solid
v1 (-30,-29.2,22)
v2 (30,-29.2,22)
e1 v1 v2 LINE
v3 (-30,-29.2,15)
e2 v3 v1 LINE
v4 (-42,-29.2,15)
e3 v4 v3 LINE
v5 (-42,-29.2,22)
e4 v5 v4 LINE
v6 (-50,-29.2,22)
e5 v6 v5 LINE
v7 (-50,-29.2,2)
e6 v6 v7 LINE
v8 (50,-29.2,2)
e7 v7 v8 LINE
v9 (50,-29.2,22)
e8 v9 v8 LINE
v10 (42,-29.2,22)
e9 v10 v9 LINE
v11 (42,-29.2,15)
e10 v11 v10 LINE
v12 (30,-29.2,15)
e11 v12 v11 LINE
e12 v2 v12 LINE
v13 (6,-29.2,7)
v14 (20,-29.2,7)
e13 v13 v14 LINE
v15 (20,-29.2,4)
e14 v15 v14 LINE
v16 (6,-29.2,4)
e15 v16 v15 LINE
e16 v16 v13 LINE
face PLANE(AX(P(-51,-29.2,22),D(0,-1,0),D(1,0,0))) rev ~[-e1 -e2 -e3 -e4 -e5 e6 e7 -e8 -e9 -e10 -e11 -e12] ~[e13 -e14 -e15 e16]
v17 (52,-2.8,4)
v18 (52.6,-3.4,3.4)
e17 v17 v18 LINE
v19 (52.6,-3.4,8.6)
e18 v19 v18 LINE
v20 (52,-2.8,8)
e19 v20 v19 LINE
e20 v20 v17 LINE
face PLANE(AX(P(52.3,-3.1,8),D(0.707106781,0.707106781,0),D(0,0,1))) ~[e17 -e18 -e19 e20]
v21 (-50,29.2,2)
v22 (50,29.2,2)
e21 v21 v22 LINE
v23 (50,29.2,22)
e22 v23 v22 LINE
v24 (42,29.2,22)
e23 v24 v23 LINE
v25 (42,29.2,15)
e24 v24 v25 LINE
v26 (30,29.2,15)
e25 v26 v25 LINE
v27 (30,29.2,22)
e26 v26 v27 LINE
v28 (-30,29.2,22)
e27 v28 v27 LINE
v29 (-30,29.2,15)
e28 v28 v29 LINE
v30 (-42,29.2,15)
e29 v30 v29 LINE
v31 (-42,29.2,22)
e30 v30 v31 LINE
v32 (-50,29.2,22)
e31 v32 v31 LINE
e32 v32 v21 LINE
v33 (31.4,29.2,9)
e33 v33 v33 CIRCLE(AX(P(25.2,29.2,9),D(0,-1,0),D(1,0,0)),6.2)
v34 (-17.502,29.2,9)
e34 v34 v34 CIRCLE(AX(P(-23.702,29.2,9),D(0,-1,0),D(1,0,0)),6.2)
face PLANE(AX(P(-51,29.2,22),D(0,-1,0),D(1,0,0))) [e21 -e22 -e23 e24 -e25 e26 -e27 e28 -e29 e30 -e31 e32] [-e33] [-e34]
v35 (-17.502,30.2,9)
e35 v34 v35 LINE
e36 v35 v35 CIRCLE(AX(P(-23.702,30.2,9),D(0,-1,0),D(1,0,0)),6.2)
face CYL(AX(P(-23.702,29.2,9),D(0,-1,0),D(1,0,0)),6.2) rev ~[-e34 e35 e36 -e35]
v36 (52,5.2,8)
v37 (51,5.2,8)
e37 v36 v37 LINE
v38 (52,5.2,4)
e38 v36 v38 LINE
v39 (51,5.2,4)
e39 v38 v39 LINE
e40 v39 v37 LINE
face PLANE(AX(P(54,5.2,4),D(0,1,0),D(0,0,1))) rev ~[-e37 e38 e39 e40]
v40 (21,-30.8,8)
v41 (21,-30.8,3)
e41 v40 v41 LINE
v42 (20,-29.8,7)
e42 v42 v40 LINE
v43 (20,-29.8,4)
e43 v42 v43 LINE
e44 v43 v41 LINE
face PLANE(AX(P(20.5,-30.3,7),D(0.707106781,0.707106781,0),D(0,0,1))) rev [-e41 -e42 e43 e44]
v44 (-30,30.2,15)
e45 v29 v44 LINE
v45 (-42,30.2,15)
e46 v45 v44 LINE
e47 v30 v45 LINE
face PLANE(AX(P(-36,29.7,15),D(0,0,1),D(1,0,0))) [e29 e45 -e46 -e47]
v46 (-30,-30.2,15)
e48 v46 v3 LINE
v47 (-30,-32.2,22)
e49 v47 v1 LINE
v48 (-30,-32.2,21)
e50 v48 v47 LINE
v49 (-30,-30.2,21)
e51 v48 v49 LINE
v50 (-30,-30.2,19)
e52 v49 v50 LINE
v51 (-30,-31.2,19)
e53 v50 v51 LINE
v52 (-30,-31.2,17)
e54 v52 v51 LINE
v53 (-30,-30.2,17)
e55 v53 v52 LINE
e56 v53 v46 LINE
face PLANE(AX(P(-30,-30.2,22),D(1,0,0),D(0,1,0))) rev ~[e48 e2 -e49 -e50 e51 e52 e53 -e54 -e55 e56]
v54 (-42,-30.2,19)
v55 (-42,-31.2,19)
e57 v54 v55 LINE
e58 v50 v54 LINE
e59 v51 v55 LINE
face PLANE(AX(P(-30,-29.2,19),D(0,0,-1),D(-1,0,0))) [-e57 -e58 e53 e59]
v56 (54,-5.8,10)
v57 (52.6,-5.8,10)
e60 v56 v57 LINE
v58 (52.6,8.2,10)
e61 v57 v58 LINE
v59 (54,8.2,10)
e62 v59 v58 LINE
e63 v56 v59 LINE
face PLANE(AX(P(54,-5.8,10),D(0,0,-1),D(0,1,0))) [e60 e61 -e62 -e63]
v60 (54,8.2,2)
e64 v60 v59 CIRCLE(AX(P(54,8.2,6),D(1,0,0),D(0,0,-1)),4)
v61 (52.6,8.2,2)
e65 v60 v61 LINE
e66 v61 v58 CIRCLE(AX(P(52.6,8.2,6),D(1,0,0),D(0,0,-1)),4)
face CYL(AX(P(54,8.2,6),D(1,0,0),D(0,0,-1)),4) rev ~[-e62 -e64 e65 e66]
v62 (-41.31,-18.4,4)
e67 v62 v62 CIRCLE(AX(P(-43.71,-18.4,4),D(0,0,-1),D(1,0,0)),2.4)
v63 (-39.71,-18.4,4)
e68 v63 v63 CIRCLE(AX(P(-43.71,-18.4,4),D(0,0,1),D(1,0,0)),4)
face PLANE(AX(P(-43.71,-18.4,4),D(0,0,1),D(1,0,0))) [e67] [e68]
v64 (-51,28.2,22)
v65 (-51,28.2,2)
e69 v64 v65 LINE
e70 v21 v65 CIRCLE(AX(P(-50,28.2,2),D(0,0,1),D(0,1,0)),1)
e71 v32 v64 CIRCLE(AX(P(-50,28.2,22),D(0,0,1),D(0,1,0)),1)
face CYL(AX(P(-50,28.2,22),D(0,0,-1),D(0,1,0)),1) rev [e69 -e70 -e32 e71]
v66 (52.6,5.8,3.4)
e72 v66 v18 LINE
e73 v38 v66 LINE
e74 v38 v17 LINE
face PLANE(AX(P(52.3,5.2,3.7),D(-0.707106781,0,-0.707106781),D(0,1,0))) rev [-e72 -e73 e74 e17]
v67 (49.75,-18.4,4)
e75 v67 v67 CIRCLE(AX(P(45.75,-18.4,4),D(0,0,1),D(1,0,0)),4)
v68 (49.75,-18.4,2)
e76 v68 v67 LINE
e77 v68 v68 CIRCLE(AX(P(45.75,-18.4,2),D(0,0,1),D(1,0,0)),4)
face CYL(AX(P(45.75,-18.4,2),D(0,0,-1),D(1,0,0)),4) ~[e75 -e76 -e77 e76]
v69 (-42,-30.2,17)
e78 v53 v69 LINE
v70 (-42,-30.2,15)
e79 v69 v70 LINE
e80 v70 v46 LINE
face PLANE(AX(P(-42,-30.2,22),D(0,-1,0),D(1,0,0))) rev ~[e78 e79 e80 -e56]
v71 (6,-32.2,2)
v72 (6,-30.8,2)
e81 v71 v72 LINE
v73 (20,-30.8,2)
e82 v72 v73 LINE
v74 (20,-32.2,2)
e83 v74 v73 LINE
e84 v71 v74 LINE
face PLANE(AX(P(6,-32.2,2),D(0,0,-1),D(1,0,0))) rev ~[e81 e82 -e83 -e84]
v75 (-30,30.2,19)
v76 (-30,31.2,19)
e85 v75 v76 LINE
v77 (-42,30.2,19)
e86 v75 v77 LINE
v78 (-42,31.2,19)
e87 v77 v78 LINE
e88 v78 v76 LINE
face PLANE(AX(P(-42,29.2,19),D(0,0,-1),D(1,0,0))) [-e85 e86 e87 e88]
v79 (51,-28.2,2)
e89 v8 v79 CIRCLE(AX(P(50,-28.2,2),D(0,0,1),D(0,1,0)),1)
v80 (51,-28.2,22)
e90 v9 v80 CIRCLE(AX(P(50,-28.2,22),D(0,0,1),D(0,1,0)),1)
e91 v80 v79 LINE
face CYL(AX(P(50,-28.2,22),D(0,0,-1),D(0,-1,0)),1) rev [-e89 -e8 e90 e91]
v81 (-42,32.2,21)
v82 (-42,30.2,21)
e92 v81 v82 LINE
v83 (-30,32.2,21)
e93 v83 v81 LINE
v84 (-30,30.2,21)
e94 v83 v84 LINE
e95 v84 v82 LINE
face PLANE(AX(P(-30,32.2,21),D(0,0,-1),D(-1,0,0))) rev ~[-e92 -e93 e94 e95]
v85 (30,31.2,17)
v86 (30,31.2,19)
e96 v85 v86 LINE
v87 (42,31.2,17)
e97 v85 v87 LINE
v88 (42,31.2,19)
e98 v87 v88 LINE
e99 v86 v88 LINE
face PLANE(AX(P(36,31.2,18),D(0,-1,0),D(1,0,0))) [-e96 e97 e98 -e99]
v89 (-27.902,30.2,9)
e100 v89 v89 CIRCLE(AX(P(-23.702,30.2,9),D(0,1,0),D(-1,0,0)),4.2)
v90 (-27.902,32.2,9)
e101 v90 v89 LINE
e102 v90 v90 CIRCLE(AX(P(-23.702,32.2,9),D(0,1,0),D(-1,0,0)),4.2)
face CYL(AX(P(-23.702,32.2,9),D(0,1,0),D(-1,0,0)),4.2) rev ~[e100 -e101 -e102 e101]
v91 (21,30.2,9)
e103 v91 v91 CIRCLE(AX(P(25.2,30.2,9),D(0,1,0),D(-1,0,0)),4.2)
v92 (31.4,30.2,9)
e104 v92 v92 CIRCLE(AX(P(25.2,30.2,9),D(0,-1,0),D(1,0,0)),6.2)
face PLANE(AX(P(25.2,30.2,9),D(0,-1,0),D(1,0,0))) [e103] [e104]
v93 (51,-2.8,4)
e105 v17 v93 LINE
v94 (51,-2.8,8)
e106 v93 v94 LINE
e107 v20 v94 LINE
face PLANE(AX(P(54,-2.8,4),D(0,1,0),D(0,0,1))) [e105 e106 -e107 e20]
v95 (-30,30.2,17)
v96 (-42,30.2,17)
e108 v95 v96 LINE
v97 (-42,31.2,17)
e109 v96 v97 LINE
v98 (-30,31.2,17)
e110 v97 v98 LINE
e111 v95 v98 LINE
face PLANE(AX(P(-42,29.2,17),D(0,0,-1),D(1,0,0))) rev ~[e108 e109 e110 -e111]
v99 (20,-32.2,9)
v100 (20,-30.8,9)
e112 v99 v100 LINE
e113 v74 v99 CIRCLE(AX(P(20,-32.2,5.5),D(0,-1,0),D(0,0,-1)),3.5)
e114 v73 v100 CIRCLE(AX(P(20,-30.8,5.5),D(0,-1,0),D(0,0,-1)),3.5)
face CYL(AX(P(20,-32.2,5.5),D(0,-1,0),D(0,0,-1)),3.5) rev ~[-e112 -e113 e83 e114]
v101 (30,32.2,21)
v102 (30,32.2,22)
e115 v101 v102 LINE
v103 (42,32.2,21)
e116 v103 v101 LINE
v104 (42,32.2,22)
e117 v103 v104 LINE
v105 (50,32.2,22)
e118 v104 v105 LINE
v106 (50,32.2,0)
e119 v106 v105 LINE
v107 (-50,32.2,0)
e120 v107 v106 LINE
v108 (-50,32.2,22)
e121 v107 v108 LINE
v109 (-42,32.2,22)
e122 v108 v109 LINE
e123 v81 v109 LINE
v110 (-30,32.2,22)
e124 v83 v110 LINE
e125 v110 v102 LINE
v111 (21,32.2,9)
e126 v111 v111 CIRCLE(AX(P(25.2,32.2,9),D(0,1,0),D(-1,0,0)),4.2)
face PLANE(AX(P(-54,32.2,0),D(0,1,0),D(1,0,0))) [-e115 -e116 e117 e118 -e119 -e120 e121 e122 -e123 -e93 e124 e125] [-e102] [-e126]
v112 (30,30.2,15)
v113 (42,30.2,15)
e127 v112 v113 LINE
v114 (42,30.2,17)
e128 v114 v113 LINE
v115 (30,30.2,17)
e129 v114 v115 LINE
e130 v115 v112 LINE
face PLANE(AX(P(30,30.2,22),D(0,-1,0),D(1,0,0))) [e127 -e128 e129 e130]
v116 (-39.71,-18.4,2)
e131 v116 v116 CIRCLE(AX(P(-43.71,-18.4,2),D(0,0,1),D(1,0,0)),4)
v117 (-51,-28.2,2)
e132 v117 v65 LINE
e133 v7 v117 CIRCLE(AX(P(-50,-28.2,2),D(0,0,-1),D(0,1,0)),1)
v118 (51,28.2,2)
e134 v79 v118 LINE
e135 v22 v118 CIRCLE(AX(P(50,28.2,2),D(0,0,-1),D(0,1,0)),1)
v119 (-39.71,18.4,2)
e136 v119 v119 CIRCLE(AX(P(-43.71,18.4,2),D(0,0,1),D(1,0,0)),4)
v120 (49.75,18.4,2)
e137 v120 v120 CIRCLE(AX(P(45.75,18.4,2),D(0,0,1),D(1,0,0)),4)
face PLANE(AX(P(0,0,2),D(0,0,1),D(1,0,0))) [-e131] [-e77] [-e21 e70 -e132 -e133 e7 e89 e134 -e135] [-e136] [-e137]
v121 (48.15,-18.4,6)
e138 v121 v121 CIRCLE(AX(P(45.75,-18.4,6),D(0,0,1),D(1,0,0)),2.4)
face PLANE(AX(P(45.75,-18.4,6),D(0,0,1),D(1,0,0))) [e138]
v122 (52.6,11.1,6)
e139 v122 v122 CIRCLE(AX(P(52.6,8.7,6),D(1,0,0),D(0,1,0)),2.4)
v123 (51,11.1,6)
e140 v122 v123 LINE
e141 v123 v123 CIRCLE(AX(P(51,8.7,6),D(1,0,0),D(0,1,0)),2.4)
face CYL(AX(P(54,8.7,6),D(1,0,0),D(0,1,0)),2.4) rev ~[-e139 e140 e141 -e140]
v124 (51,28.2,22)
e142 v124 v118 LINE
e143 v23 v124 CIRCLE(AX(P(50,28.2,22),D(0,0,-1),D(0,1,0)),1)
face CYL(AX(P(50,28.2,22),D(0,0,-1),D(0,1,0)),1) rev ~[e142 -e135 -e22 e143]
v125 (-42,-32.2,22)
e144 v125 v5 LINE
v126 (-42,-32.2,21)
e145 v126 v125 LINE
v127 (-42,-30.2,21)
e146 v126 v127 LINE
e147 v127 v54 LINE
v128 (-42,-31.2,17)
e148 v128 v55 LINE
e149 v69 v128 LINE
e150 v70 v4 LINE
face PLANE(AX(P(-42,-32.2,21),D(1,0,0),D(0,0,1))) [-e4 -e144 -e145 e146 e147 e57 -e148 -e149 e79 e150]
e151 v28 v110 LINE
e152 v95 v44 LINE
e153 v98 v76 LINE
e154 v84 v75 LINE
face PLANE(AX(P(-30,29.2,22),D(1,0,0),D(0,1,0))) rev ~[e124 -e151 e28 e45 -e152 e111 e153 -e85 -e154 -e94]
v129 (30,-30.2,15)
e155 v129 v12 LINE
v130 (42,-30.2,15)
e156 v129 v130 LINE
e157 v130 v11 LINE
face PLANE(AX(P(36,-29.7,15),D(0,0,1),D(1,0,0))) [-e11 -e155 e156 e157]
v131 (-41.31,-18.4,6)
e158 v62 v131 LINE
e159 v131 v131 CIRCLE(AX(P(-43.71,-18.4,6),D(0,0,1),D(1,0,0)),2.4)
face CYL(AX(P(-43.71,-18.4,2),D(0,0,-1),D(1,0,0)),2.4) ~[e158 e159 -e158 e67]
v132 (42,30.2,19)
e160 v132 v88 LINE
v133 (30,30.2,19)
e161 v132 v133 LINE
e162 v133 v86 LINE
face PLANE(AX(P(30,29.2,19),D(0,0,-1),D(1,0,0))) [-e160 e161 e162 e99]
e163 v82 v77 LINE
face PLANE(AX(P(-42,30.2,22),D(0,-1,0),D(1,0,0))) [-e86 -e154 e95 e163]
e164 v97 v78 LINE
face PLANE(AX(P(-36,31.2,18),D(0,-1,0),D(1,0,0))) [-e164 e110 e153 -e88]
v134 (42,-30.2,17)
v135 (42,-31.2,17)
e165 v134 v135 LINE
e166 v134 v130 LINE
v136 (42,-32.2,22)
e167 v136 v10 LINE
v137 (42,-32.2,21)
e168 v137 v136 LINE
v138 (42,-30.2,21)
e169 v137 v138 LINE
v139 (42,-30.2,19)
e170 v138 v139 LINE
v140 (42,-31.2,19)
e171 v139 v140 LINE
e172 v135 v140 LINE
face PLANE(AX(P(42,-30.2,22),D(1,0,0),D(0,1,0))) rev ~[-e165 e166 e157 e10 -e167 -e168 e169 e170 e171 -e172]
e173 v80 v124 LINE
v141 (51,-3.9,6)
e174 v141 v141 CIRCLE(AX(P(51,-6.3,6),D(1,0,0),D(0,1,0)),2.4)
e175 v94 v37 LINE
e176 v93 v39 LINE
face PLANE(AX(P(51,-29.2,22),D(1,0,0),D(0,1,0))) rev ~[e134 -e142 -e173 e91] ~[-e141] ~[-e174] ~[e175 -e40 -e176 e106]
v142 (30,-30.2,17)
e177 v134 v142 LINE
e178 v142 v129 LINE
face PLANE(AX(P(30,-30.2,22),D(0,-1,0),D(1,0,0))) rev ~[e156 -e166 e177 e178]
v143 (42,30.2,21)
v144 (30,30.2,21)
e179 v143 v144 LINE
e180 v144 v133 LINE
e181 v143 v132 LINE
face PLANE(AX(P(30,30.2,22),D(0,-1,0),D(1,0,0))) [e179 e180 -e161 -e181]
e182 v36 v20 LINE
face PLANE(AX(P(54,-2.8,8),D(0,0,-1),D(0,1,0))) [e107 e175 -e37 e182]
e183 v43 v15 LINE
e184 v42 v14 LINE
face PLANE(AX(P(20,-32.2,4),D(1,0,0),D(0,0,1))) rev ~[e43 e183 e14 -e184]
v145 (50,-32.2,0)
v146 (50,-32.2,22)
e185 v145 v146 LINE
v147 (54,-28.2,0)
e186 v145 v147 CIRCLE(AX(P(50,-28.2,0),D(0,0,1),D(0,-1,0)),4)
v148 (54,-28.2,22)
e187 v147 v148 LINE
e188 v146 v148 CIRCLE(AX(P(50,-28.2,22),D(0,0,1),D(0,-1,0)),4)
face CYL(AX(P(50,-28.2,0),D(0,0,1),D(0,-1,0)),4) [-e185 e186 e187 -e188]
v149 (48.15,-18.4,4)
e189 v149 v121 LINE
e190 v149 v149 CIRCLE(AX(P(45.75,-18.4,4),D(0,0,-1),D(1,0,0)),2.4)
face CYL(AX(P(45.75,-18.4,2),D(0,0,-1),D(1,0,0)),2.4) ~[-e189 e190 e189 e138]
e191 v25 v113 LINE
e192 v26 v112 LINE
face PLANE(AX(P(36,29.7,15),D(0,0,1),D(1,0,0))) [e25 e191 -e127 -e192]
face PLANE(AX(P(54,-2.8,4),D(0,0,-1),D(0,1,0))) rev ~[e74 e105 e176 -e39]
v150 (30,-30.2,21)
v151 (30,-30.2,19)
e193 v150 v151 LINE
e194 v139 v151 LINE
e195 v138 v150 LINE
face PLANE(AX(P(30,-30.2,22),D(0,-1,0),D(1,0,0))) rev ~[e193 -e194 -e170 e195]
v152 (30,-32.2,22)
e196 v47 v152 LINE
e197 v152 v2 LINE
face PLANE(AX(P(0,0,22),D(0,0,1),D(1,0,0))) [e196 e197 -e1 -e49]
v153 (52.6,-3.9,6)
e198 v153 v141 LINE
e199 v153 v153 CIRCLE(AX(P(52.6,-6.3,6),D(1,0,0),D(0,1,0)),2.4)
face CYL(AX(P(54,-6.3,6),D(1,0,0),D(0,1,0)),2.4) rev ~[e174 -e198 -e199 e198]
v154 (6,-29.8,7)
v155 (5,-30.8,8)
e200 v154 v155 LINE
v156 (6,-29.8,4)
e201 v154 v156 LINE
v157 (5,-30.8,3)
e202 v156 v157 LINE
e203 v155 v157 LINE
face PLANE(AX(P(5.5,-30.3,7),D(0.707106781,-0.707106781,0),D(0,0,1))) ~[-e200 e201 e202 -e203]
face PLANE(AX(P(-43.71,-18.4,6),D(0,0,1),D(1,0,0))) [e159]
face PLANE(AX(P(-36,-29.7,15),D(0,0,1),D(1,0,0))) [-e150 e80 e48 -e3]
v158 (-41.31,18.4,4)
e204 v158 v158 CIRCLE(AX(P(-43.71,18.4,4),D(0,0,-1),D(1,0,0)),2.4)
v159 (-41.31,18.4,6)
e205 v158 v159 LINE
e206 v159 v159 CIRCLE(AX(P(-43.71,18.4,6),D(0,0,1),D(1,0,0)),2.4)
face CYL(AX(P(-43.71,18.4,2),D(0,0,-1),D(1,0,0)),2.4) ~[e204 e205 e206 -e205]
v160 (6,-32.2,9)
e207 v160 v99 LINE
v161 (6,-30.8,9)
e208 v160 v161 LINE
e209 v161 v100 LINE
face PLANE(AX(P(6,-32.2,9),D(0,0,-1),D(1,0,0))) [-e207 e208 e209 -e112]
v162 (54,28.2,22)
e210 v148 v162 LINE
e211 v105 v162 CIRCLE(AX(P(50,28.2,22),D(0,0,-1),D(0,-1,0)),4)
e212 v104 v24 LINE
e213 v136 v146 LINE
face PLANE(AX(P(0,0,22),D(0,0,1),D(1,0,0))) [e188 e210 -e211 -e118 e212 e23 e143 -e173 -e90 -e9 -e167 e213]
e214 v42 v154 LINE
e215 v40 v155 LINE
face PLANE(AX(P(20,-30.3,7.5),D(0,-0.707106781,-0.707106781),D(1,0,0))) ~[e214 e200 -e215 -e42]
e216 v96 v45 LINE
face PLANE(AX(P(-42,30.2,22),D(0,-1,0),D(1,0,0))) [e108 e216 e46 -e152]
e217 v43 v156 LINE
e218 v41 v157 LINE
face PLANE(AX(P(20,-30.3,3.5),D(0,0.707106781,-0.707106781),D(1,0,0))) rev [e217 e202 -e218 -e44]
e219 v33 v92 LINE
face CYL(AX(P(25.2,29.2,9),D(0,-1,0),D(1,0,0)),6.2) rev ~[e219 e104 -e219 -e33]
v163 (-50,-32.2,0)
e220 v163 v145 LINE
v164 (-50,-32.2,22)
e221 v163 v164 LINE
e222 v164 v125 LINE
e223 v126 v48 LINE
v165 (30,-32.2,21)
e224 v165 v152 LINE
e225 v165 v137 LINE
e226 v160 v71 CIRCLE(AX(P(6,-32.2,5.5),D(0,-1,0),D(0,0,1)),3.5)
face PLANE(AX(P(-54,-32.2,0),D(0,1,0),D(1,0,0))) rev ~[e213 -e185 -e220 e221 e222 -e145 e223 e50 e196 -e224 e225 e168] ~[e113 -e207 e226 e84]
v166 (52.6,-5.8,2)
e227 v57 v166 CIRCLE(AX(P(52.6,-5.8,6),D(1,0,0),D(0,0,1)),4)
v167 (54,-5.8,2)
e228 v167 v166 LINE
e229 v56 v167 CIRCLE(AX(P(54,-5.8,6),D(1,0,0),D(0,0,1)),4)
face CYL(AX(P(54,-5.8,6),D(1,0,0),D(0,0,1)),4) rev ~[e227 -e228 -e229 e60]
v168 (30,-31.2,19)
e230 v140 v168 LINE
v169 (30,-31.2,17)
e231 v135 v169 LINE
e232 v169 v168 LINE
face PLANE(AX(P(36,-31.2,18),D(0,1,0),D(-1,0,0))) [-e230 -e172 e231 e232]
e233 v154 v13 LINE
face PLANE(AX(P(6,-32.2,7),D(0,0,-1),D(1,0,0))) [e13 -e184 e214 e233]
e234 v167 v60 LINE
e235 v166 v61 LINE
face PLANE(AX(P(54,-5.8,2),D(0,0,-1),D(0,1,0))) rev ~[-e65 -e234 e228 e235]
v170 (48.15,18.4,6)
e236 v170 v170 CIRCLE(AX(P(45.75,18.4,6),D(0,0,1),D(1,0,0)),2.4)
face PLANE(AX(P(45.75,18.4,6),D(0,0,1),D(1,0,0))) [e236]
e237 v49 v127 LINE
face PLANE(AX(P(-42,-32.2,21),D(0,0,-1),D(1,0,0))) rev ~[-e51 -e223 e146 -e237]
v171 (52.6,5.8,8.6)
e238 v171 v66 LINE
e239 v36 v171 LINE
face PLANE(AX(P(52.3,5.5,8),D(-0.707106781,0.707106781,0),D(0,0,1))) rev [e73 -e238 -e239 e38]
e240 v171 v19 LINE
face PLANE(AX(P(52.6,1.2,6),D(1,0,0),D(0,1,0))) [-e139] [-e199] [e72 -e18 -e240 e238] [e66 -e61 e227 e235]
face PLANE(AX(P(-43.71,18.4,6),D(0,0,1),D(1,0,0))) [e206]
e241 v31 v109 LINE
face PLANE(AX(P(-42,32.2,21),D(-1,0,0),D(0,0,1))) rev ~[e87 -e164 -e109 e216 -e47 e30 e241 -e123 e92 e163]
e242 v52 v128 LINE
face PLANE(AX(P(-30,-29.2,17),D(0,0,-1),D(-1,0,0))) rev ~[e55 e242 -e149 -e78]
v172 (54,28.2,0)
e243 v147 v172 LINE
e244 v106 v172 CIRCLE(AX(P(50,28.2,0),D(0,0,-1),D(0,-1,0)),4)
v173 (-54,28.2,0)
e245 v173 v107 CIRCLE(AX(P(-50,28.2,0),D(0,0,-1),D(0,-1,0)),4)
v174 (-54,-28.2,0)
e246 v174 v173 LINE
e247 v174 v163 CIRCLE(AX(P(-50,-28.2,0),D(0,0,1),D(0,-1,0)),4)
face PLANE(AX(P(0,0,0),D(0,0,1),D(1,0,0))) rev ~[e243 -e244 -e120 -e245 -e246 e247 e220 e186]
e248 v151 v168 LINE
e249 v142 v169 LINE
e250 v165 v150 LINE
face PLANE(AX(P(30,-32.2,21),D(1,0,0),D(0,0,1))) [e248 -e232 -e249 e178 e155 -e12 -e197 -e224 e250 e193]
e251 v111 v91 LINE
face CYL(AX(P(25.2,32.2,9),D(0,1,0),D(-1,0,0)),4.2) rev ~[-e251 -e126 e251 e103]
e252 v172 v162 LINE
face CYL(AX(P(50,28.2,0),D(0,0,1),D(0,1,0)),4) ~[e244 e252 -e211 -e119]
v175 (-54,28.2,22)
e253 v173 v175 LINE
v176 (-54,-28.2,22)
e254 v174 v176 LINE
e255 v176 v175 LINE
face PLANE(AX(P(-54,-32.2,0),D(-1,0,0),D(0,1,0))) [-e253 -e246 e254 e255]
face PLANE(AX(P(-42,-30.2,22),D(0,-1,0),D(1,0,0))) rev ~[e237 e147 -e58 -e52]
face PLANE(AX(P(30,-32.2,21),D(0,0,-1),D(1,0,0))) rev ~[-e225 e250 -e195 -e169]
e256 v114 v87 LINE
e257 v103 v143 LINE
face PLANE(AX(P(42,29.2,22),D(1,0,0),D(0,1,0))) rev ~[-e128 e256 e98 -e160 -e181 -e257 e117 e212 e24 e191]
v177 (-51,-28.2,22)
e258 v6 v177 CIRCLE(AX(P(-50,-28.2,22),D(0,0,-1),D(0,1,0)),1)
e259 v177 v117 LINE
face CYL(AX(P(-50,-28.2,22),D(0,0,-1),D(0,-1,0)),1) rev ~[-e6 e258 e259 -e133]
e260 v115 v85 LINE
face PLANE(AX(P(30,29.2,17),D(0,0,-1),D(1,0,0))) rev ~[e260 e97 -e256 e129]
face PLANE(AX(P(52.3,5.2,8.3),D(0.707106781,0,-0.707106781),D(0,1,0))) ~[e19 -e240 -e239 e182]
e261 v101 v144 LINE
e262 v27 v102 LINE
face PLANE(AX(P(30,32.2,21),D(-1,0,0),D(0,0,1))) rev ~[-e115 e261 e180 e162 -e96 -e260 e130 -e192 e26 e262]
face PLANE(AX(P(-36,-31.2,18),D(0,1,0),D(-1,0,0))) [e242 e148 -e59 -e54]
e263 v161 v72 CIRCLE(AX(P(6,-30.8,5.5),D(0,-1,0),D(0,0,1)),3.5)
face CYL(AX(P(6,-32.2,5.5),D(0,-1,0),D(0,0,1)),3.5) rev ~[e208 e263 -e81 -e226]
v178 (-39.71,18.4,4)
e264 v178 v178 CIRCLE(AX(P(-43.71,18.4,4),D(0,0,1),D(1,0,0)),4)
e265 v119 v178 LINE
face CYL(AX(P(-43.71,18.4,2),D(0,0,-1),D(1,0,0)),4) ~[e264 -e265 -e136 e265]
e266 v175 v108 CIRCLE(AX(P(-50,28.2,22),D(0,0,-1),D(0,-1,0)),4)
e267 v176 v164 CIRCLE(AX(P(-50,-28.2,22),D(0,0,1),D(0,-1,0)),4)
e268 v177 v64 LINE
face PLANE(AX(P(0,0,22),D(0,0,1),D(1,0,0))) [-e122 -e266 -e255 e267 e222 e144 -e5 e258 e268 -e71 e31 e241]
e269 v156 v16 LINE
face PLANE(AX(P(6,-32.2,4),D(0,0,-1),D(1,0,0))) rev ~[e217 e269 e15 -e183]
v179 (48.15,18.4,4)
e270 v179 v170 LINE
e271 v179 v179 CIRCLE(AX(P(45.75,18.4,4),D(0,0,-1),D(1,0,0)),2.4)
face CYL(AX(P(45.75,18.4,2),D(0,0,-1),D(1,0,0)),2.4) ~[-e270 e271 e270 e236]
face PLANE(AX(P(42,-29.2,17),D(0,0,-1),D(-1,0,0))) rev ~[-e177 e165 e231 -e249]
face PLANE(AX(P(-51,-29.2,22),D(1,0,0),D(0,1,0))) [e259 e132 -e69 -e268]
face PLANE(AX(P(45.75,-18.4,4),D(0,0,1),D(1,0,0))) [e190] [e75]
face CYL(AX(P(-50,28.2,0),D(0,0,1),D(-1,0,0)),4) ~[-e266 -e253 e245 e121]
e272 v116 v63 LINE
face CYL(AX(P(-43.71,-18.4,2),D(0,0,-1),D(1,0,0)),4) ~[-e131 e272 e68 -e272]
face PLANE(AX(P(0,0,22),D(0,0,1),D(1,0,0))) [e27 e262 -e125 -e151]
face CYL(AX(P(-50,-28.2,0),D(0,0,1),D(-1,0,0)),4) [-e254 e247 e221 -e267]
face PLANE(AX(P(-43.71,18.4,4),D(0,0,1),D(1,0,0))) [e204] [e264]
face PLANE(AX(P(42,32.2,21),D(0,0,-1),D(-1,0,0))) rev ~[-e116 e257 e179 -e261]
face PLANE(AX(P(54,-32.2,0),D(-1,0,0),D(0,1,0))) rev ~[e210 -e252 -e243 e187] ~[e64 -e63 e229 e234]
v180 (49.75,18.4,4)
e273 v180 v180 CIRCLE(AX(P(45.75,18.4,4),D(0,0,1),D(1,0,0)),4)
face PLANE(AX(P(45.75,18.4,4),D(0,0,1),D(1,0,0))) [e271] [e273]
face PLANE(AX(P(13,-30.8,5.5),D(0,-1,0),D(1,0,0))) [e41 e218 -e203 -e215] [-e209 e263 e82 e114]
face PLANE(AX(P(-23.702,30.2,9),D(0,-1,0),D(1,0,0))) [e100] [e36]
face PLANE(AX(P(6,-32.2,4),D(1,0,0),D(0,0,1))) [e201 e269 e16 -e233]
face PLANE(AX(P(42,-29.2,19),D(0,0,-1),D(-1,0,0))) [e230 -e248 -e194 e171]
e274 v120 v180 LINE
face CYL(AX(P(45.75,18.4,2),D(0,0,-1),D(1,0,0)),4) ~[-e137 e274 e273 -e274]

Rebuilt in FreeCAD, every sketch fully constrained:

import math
import FreeCAD as App
import Part
import Sketcher
from FreeCAD import Vector


def edges_at(feature, points):
    """Names of the edges that pass closest to the given points."""
    edges = feature.Shape.Edges
    near = lambda p: min(range(len(edges)), key=lambda i: edges[i].distToShape(Part.Vertex(*p))[0])
    return sorted({f"Edge{near(p) + 1}" for p in points})


def add_polygon(sketch, points):
    """Adds a closed chain of lines whose ends are joined by coincident constraints."""
    first, n = sketch.GeometryCount, len(points)
    for a, b in zip(points, points[1:] + points[:1]):
        sketch.addGeometry(Part.LineSegment(App.Vector(*a, 0), App.Vector(*b, 0)), False)
    for i in range(n):
        sketch.addConstraint(Sketcher.Constraint("Coincident", first + i, 2, first + (i + 1) % n, 1))

doc = App.newDocument("Part")
body = doc.addObject("PartDesign::Body", "Body")

sketch1 = body.newObject("Sketcher::SketchObject", "Sketch")
sketch1.AttachmentSupport = (doc.getObject("XY_Plane"), [""])
sketch1.MapMode = "FlatFace"
add_polygon(sketch1, [(-54, 32.2), (-54, -32.2), (54, -32.2), (54, 32.2)])
sketch1.addConstraint(Sketcher.Constraint("Vertical", 0))
sketch1.addConstraint(Sketcher.Constraint("Horizontal", 1))
sketch1.addConstraint(Sketcher.Constraint("Vertical", 2))
sketch1.addConstraint(Sketcher.Constraint("Horizontal", 3))
sketch1.addConstraint(Sketcher.Constraint("Symmetric", 0, 2, 2, 2, -1, 1))
sketch1.addConstraint(Sketcher.Constraint("DistanceX", 1, 1, 1, 2, 108.0))
sketch1.addConstraint(Sketcher.Constraint("DistanceY", 0, 2, 0, 1, 64.4))
pad1 = body.newObject("PartDesign::Pad", "Pad")
pad1.Profile = sketch1
pad1.Length = 22

sketch2 = body.newObject("Sketcher::SketchObject", "Sketch001")
sketch2.AttachmentSupport = (doc.getObject("XY_Plane"), [""])
sketch2.MapMode = "FlatFace"
sketch2.AttachmentOffset = App.Placement(Vector(0, 0, 22), App.Rotation())
add_polygon(sketch2, [(-51, 29.2), (-51, -29.2), (51, -29.2), (51, 29.2)])
sketch2.addConstraint(Sketcher.Constraint("Vertical", 0))
sketch2.addConstraint(Sketcher.Constraint("Horizontal", 1))
sketch2.addConstraint(Sketcher.Constraint("Vertical", 2))
sketch2.addConstraint(Sketcher.Constraint("Horizontal", 3))
sketch2.addConstraint(Sketcher.Constraint("Symmetric", 0, 2, 2, 2, -1, 1))
sketch2.addConstraint(Sketcher.Constraint("DistanceX", 1, 1, 1, 2, 102.0))
sketch2.addConstraint(Sketcher.Constraint("DistanceY", 0, 2, 0, 1, 58.4))
pocket1 = body.newObject("PartDesign::Pocket", "Pocket")
pocket1.Profile = sketch2
pocket1.Length = 20

sketch3 = body.newObject("Sketcher::SketchObject", "Sketch002")
sketch3.AttachmentSupport = (doc.getObject("XY_Plane"), [""])
sketch3.MapMode = "FlatFace"
sketch3.AttachmentOffset = App.Placement(Vector(0, 0, 2), App.Rotation())
sketch3.addGeometry(Part.Circle(Vector(-43.71, 18.4, 0), Vector(0, 0, 1), 4), False)
sketch3.addGeometry(Part.Circle(Vector(45.75, 18.4, 0), Vector(0, 0, 1), 4), False)
sketch3.addGeometry(Part.Circle(Vector(45.75, -18.4, 0), Vector(0, 0, 1), 4), False)
sketch3.addGeometry(Part.Circle(Vector(-43.71, -18.4, 0), Vector(0, 0, 1), 4), False)
sketch3.addConstraint(Sketcher.Constraint("Equal", 0, 1))
sketch3.addConstraint(Sketcher.Constraint("Equal", 1, 2))
sketch3.addConstraint(Sketcher.Constraint("Equal", 2, 3))
sketch3.addConstraint(Sketcher.Constraint("Symmetric", 1, 3, 2, 3, -1))
sketch3.addConstraint(Sketcher.Constraint("Symmetric", 0, 3, 3, 3, -1))
sketch3.addConstraint(Sketcher.Constraint("Horizontal", 0, 3, 1, 3))
sketch3.addConstraint(Sketcher.Constraint("Diameter", 0, 8.0))
sketch3.addConstraint(Sketcher.Constraint("DistanceY", -1, 1, 0, 3, 18.4))
sketch3.addConstraint(Sketcher.Constraint("DistanceX", 0, 3, -1, 1, 43.71))
sketch3.addConstraint(Sketcher.Constraint("DistanceX", -1, 1, 1, 3, 45.75))
pad2 = body.newObject("PartDesign::Pad", "Pad001")
pad2.Profile = sketch3
pad2.Length = 2

sketch4 = body.newObject("Sketcher::SketchObject", "Sketch003")
sketch4.AttachmentSupport = (doc.getObject("XY_Plane"), [""])
sketch4.MapMode = "FlatFace"
sketch4.AttachmentOffset = App.Placement(Vector(0, 0, 2), App.Rotation())
sketch4.addGeometry(Part.Circle(Vector(-43.71, 18.4, 0), Vector(0, 0, 1), 2.4), False)
sketch4.addGeometry(Part.Circle(Vector(45.75, 18.4, 0), Vector(0, 0, 1), 2.4), False)
sketch4.addGeometry(Part.Circle(Vector(45.75, -18.4, 0), Vector(0, 0, 1), 2.4), False)
sketch4.addGeometry(Part.Circle(Vector(-43.71, -18.4, 0), Vector(0, 0, 1), 2.4), False)
sketch4.addConstraint(Sketcher.Constraint("Equal", 0, 1))
sketch4.addConstraint(Sketcher.Constraint("Equal", 1, 2))
sketch4.addConstraint(Sketcher.Constraint("Equal", 2, 3))
sketch4.addConstraint(Sketcher.Constraint("Symmetric", 1, 3, 2, 3, -1))
sketch4.addConstraint(Sketcher.Constraint("Symmetric", 0, 3, 3, 3, -1))
sketch4.addConstraint(Sketcher.Constraint("Horizontal", 0, 3, 1, 3))
sketch4.addConstraint(Sketcher.Constraint("Diameter", 0, 4.8))
sketch4.addConstraint(Sketcher.Constraint("DistanceY", -1, 1, 0, 3, 18.4))
sketch4.addConstraint(Sketcher.Constraint("DistanceX", 0, 3, -1, 1, 43.71))
sketch4.addConstraint(Sketcher.Constraint("DistanceX", -1, 1, 1, 3, 45.75))
pad3 = body.newObject("PartDesign::Pad", "Pad002")
pad3.Profile = sketch4
pad3.Length = 4

sketch5 = body.newObject("Sketcher::SketchObject", "Sketch004")
sketch5.AttachmentSupport = (doc.getObject("XZ_Plane"), [""])
sketch5.MapMode = "FlatFace"
sketch5.AttachmentOffset = App.Placement(Vector(0, 0, -32.2), App.Rotation())
sketch5.addGeometry(Part.Circle(Vector(25.2, 9, 0), Vector(0, 0, 1), 4.2), False)
sketch5.addGeometry(Part.Circle(Vector(-23.702, 9, 0), Vector(0, 0, 1), 4.2), False)
add_polygon(sketch5, [(42, 22), (42, 21), (30, 21), (30, 22)])
add_polygon(sketch5, [(-30, 22), (-30, 21), (-42, 21), (-42, 22)])
sketch5.addConstraint(Sketcher.Constraint("Vertical", 2))
sketch5.addConstraint(Sketcher.Constraint("Horizontal", 3))
sketch5.addConstraint(Sketcher.Constraint("Vertical", 4))
sketch5.addConstraint(Sketcher.Constraint("Horizontal", 5))
sketch5.addConstraint(Sketcher.Constraint("Vertical", 6))
sketch5.addConstraint(Sketcher.Constraint("Horizontal", 7))
sketch5.addConstraint(Sketcher.Constraint("Vertical", 8))
sketch5.addConstraint(Sketcher.Constraint("Horizontal", 9))
sketch5.addConstraint(Sketcher.Constraint("Equal", 0, 1))
sketch5.addConstraint(Sketcher.Constraint("Symmetric", 3, 2, 6, 2, -2))
sketch5.addConstraint(Sketcher.Constraint("Symmetric", 5, 2, 8, 2, -2))
sketch5.addConstraint(Sketcher.Constraint("Horizontal", 0, 3, 1, 3))
sketch5.addConstraint(Sketcher.Constraint("Diameter", 0, 8.4))
sketch5.addConstraint(Sketcher.Constraint("DistanceX", 3, 2, 3, 1, 12.0))
sketch5.addConstraint(Sketcher.Constraint("DistanceY", 2, 2, 2, 1, 1.0))
sketch5.addConstraint(Sketcher.Constraint("DistanceY", -1, 1, 0, 3, 9.0))
sketch5.addConstraint(Sketcher.Constraint("DistanceX", -1, 1, 2, 2, 42.0))
sketch5.addConstraint(Sketcher.Constraint("DistanceY", -1, 1, 2, 2, 21.0))
sketch5.addConstraint(Sketcher.Constraint("DistanceX", -1, 1, 0, 3, 25.2))
sketch5.addConstraint(Sketcher.Constraint("DistanceX", 1, 3, -1, 1, 23.702))
pocket2 = body.newObject("PartDesign::Pocket", "Pocket001")
pocket2.Profile = sketch5
pocket2.Length = 3
pocket2.Reversed = True

sketch6 = body.newObject("Sketcher::SketchObject", "Sketch005")
sketch6.AttachmentSupport = (doc.getObject("XZ_Plane"), [""])
sketch6.MapMode = "FlatFace"
sketch6.AttachmentOffset = App.Placement(Vector(0, 0, 32.2), App.Rotation())
add_polygon(sketch6, [(-42, 22), (-42, 21), (-30, 21), (-30, 22)])
add_polygon(sketch6, [(30, 22), (30, 21), (42, 21), (42, 22)])
add_polygon(sketch6, [(6, 7), (6, 4), (20, 4), (20, 7)])
sketch6.addConstraint(Sketcher.Constraint("Vertical", 0))
sketch6.addConstraint(Sketcher.Constraint("Horizontal", 1))
sketch6.addConstraint(Sketcher.Constraint("Vertical", 2))
sketch6.addConstraint(Sketcher.Constraint("Horizontal", 3))
sketch6.addConstraint(Sketcher.Constraint("Vertical", 4))
sketch6.addConstraint(Sketcher.Constraint("Horizontal", 5))
sketch6.addConstraint(Sketcher.Constraint("Vertical", 6))
sketch6.addConstraint(Sketcher.Constraint("Horizontal", 7))
sketch6.addConstraint(Sketcher.Constraint("Vertical", 8))
sketch6.addConstraint(Sketcher.Constraint("Horizontal", 9))
sketch6.addConstraint(Sketcher.Constraint("Vertical", 10))
sketch6.addConstraint(Sketcher.Constraint("Horizontal", 11))
sketch6.addConstraint(Sketcher.Constraint("Symmetric", 1, 2, 4, 2, -2))
sketch6.addConstraint(Sketcher.Constraint("Symmetric", 3, 2, 6, 2, -2))
sketch6.addConstraint(Sketcher.Constraint("DistanceX", 1, 1, 1, 2, 12.0))
sketch6.addConstraint(Sketcher.Constraint("DistanceX", 9, 1, 9, 2, 14.0))
sketch6.addConstraint(Sketcher.Constraint("DistanceY", 0, 2, 0, 1, 1.0))
sketch6.addConstraint(Sketcher.Constraint("DistanceY", 8, 2, 8, 1, 3.0))
sketch6.addConstraint(Sketcher.Constraint("DistanceX", 0, 2, -1, 1, 42.0))
sketch6.addConstraint(Sketcher.Constraint("DistanceY", -1, 1, 0, 2, 21.0))
sketch6.addConstraint(Sketcher.Constraint("DistanceX", -1, 1, 8, 2, 6.0))
sketch6.addConstraint(Sketcher.Constraint("DistanceY", -1, 1, 8, 2, 4.0))
pocket3 = body.newObject("PartDesign::Pocket", "Pocket002")
pocket3.Profile = sketch6
pocket3.Length = 3

sketch7 = body.newObject("Sketcher::SketchObject", "Sketch006")
sketch7.AttachmentSupport = (doc.getObject("YZ_Plane"), [""])
sketch7.MapMode = "FlatFace"
sketch7.AttachmentOffset = App.Placement(Vector(0, 0, 54), App.Rotation())
sketch7.addGeometry(Part.Circle(Vector(-6.3, 6, 0), Vector(0, 0, 1), 2.4), False)
sketch7.addGeometry(Part.Circle(Vector(8.7, 6, 0), Vector(0, 0, 1), 2.4), False)
add_polygon(sketch7, [(-2.8, 8), (-2.8, 4), (5.2, 4), (5.2, 8)])
sketch7.addConstraint(Sketcher.Constraint("Vertical", 2))
sketch7.addConstraint(Sketcher.Constraint("Horizontal", 3))
sketch7.addConstraint(Sketcher.Constraint("Vertical", 4))
sketch7.addConstraint(Sketcher.Constraint("Horizontal", 5))
sketch7.addConstraint(Sketcher.Constraint("Equal", 0, 1))
sketch7.addConstraint(Sketcher.Constraint("Horizontal", 0, 3, 1, 3))
sketch7.addConstraint(Sketcher.Constraint("Diameter", 0, 4.8))
sketch7.addConstraint(Sketcher.Constraint("DistanceX", 3, 1, 3, 2, 8.0))
sketch7.addConstraint(Sketcher.Constraint("DistanceY", 2, 2, 2, 1, 4.0))
sketch7.addConstraint(Sketcher.Constraint("DistanceY", -1, 1, 0, 3, 6.0))
sketch7.addConstraint(Sketcher.Constraint("DistanceY", -1, 1, 2, 2, 4.0))
sketch7.addConstraint(Sketcher.Constraint("DistanceX", 0, 3, 1, 3, 15.0))
sketch7.addConstraint(Sketcher.Constraint("DistanceX", 0, 3, -1, 1, 6.3))
sketch7.addConstraint(Sketcher.Constraint("DistanceX", 2, 2, -1, 1, 2.8))
pocket4 = body.newObject("PartDesign::Pocket", "Pocket003")
pocket4.Profile = sketch7
pocket4.Length = 3

sketch8 = body.newObject("Sketcher::SketchObject", "Sketch007")
sketch8.AttachmentSupport = (doc.getObject("XZ_Plane"), [""])
sketch8.MapMode = "FlatFace"
sketch8.AttachmentOffset = App.Placement(Vector(0, 0, -29.2), App.Rotation())
add_polygon(sketch8, [(-42, 19), (-42, 17), (-30, 17), (-30, 19)])
add_polygon(sketch8, [(30, 19), (30, 17), (42, 17), (42, 19)])
sketch8.addConstraint(Sketcher.Constraint("Vertical", 0))
sketch8.addConstraint(Sketcher.Constraint("Horizontal", 1))
sketch8.addConstraint(Sketcher.Constraint("Vertical", 2))
sketch8.addConstraint(Sketcher.Constraint("Horizontal", 3))
sketch8.addConstraint(Sketcher.Constraint("Vertical", 4))
sketch8.addConstraint(Sketcher.Constraint("Horizontal", 5))
sketch8.addConstraint(Sketcher.Constraint("Vertical", 6))
sketch8.addConstraint(Sketcher.Constraint("Horizontal", 7))
sketch8.addConstraint(Sketcher.Constraint("Symmetric", 1, 2, 4, 2, -2))
sketch8.addConstraint(Sketcher.Constraint("Symmetric", 3, 2, 6, 2, -2))
sketch8.addConstraint(Sketcher.Constraint("DistanceX", 1, 1, 1, 2, 12.0))
sketch8.addConstraint(Sketcher.Constraint("DistanceY", 0, 2, 0, 1, 2.0))
sketch8.addConstraint(Sketcher.Constraint("DistanceX", 0, 2, -1, 1, 42.0))
sketch8.addConstraint(Sketcher.Constraint("DistanceY", -1, 1, 0, 2, 17.0))
pocket5 = body.newObject("PartDesign::Pocket", "Pocket004")
pocket5.Profile = sketch8
pocket5.Length = 2

sketch9 = body.newObject("Sketcher::SketchObject", "Sketch008")
sketch9.AttachmentSupport = (doc.getObject("XZ_Plane"), [""])
sketch9.MapMode = "FlatFace"
sketch9.AttachmentOffset = App.Placement(Vector(0, 0, 29.2), App.Rotation())
add_polygon(sketch9, [(42, 19), (42, 17), (30, 17), (30, 19)])
add_polygon(sketch9, [(-30, 19), (-30, 17), (-42, 17), (-42, 19)])
sketch9.addConstraint(Sketcher.Constraint("Vertical", 0))
sketch9.addConstraint(Sketcher.Constraint("Horizontal", 1))
sketch9.addConstraint(Sketcher.Constraint("Vertical", 2))
sketch9.addConstraint(Sketcher.Constraint("Horizontal", 3))
sketch9.addConstraint(Sketcher.Constraint("Vertical", 4))
sketch9.addConstraint(Sketcher.Constraint("Horizontal", 5))
sketch9.addConstraint(Sketcher.Constraint("Vertical", 6))
sketch9.addConstraint(Sketcher.Constraint("Horizontal", 7))
sketch9.addConstraint(Sketcher.Constraint("Symmetric", 1, 2, 4, 2, -2))
sketch9.addConstraint(Sketcher.Constraint("Symmetric", 3, 2, 6, 2, -2))
sketch9.addConstraint(Sketcher.Constraint("DistanceX", 1, 2, 1, 1, 12.0))
sketch9.addConstraint(Sketcher.Constraint("DistanceY", 0, 2, 0, 1, 2.0))
sketch9.addConstraint(Sketcher.Constraint("DistanceX", -1, 1, 0, 2, 42.0))
sketch9.addConstraint(Sketcher.Constraint("DistanceY", -1, 1, 0, 2, 17.0))
pocket6 = body.newObject("PartDesign::Pocket", "Pocket005")
pocket6.Profile = sketch9
pocket6.Length = 2
pocket6.Reversed = True

sketch10 = body.newObject("Sketcher::SketchObject", "Sketch009")
sketch10.AttachmentSupport = (doc.getObject("XY_Plane"), [""])
sketch10.MapMode = "FlatFace"
sketch10.AttachmentOffset = App.Placement(Vector(0, 0, 22), App.Rotation())
add_polygon(sketch10, [(-42, 30.2), (-42, 29.2), (-30, 29.2), (-30, 30.2)])
add_polygon(sketch10, [(30, 30.2), (30, 29.2), (42, 29.2), (42, 30.2)])
add_polygon(sketch10, [(30, -29.2), (30, -30.2), (42, -30.2), (42, -29.2)])
add_polygon(sketch10, [(-42, -29.2), (-42, -30.2), (-30, -30.2), (-30, -29.2)])
sketch10.addConstraint(Sketcher.Constraint("Vertical", 0))
sketch10.addConstraint(Sketcher.Constraint("Horizontal", 1))
sketch10.addConstraint(Sketcher.Constraint("Vertical", 2))
sketch10.addConstraint(Sketcher.Constraint("Horizontal", 3))
sketch10.addConstraint(Sketcher.Constraint("Vertical", 4))
sketch10.addConstraint(Sketcher.Constraint("Horizontal", 5))
sketch10.addConstraint(Sketcher.Constraint("Vertical", 6))
sketch10.addConstraint(Sketcher.Constraint("Horizontal", 7))
sketch10.addConstraint(Sketcher.Constraint("Vertical", 8))
sketch10.addConstraint(Sketcher.Constraint("Horizontal", 9))
sketch10.addConstraint(Sketcher.Constraint("Vertical", 10))
sketch10.addConstraint(Sketcher.Constraint("Horizontal", 11))
sketch10.addConstraint(Sketcher.Constraint("Vertical", 12))
sketch10.addConstraint(Sketcher.Constraint("Horizontal", 13))
sketch10.addConstraint(Sketcher.Constraint("Vertical", 14))
sketch10.addConstraint(Sketcher.Constraint("Horizontal", 15))
sketch10.addConstraint(Sketcher.Constraint("Symmetric", 2, 2, 8, 2, -1, 1))
sketch10.addConstraint(Sketcher.Constraint("Symmetric", 0, 2, 10, 2, -1, 1))
sketch10.addConstraint(Sketcher.Constraint("Symmetric", 6, 2, 12, 2, -1, 1))
sketch10.addConstraint(Sketcher.Constraint("Symmetric", 4, 2, 14, 2, -1, 1))
sketch10.addConstraint(Sketcher.Constraint("Symmetric", 1, 2, 4, 2, -2))
sketch10.addConstraint(Sketcher.Constraint("Symmetric", 3, 2, 6, 2, -2))
sketch10.addConstraint(Sketcher.Constraint("DistanceX", 1, 1, 1, 2, 12.0))
sketch10.addConstraint(Sketcher.Constraint("DistanceY", 0, 2, 0, 1, 1.0))
sketch10.addConstraint(Sketcher.Constraint("DistanceX", 0, 2, -1, 1, 42.0))
sketch10.addConstraint(Sketcher.Constraint("DistanceY", -1, 1, 0, 2, 29.2))
pocket7 = body.newObject("PartDesign::Pocket", "Pocket006")
pocket7.Profile = sketch10
pocket7.Length = 7

sketch11 = body.newObject("Sketcher::SketchObject", "Sketch010")
sketch11.AttachmentSupport = (doc.getObject("XZ_Plane"), [""])
sketch11.MapMode = "FlatFace"
sketch11.AttachmentOffset = App.Placement(Vector(0, 0, 32.2), App.Rotation())
sketch11.addGeometry(Part.ArcOfCircle(Part.Circle(Vector(6, 5.5, 0), Vector(0, 0, 1), 3.5), math.radians(90), math.radians(270)), False)
sketch11.addGeometry(Part.LineSegment(Vector(6, 2, 0), Vector(20, 2, 0)), False)
sketch11.addGeometry(Part.ArcOfCircle(Part.Circle(Vector(20, 5.5, 0), Vector(0, 0, 1), 3.5), math.radians(-90), math.radians(90)), False)
sketch11.addGeometry(Part.LineSegment(Vector(20, 9, 0), Vector(6, 9, 0)), False)
sketch11.addConstraint(Sketcher.Constraint("Tangent", 0, 2, 1, 1))
sketch11.addConstraint(Sketcher.Constraint("Tangent", 1, 2, 2, 1))
sketch11.addConstraint(Sketcher.Constraint("Tangent", 2, 2, 3, 1))
sketch11.addConstraint(Sketcher.Constraint("Tangent", 3, 2, 0, 1))
sketch11.addConstraint(Sketcher.Constraint("Horizontal", 1))
sketch11.addConstraint(Sketcher.Constraint("Horizontal", 3))
sketch11.addConstraint(Sketcher.Constraint("Radius", 0, 3.5))
sketch11.addConstraint(Sketcher.Constraint("DistanceX", 1, 1, 1, 2, 14.0))
sketch11.addConstraint(Sketcher.Constraint("DistanceX", -1, 1, 0, 3, 6.0))
sketch11.addConstraint(Sketcher.Constraint("DistanceY", -1, 1, 0, 2, 2.0))
pocket8 = body.newObject("PartDesign::Pocket", "Pocket007")
pocket8.Profile = sketch11
pocket8.Length = 1.4

sketch12 = body.newObject("Sketcher::SketchObject", "Sketch011")
sketch12.AttachmentSupport = (doc.getObject("YZ_Plane"), [""])
sketch12.MapMode = "FlatFace"
sketch12.AttachmentOffset = App.Placement(Vector(0, 0, 54), App.Rotation())
sketch12.addGeometry(Part.ArcOfCircle(Part.Circle(Vector(-5.8, 6, 0), Vector(0, 0, 1), 4), math.radians(90), math.radians(270)), False)
sketch12.addGeometry(Part.LineSegment(Vector(-5.8, 2, 0), Vector(8.2, 2, 0)), False)
sketch12.addGeometry(Part.ArcOfCircle(Part.Circle(Vector(8.2, 6, 0), Vector(0, 0, 1), 4), math.radians(-90), math.radians(90)), False)
sketch12.addGeometry(Part.LineSegment(Vector(8.2, 10, 0), Vector(-5.8, 10, 0)), False)
sketch12.addConstraint(Sketcher.Constraint("Tangent", 0, 2, 1, 1))
sketch12.addConstraint(Sketcher.Constraint("Tangent", 1, 2, 2, 1))
sketch12.addConstraint(Sketcher.Constraint("Tangent", 2, 2, 3, 1))
sketch12.addConstraint(Sketcher.Constraint("Tangent", 3, 2, 0, 1))
sketch12.addConstraint(Sketcher.Constraint("Horizontal", 1))
sketch12.addConstraint(Sketcher.Constraint("Horizontal", 3))
sketch12.addConstraint(Sketcher.Constraint("Radius", 0, 4.0))
sketch12.addConstraint(Sketcher.Constraint("DistanceX", 1, 1, 1, 2, 14.0))
sketch12.addConstraint(Sketcher.Constraint("DistanceY", -1, 1, 0, 3, 6.0))
sketch12.addConstraint(Sketcher.Constraint("DistanceX", 0, 3, -1, 1, 5.8))
pocket9 = body.newObject("PartDesign::Pocket", "Pocket008")
pocket9.Profile = sketch12
pocket9.Length = 1.4
doc.recompute()

fillet = body.newObject("PartDesign::Fillet", "Fillet")
fillet.Base = (pocket9, edges_at(pocket9, [
    (54, -32.2, 11),
    (54, 32.2, 11),
    (-54, 32.2, 11),
    (-54, -32.2, 11),
]))
fillet.Radius = 4
doc.recompute()

fillet2 = body.newObject("PartDesign::Fillet", "Fillet001")
fillet2.Base = (fillet, edges_at(fillet, [
    (-51, 29.2, 12),
    (-51, -29.2, 12),
    (51, -29.2, 12),
    (51, 29.2, 12),
]))
fillet2.Radius = 1
doc.recompute()

chamfer = body.newObject("PartDesign::Chamfer", "Chamfer")
chamfer.Base = (fillet2, edges_at(fillet2, [
    (52.6, 1.2, 8),
    (52.6, -2.8, 6),
    (52.6, 5.2, 6),
    (52.6, 1.2, 4),
]))
chamfer.Size = 0.6
doc.recompute()

chamfer2 = body.newObject("PartDesign::Chamfer", "Chamfer001")
chamfer2.Base = (chamfer, edges_at(chamfer, [
    (13, -30.8, 7),
    (6, -30.8, 5.5),
    (13, -30.8, 4),
    (20, -30.8, 5.5),
]))
chamfer2.Size = 1

sketch13 = body.newObject("Sketcher::SketchObject", "Sketch012")
sketch13.AttachmentSupport = (doc.getObject("XZ_Plane"), [""])
sketch13.MapMode = "FlatFace"
sketch13.AttachmentOffset = App.Placement(Vector(0, 0, -29.2), App.Rotation())
sketch13.addGeometry(Part.Circle(Vector(-23.702, 9, 0), Vector(0, 0, 1), 6.2), False)
sketch13.addGeometry(Part.Circle(Vector(25.2, 9, 0), Vector(0, 0, 1), 6.2), False)
sketch13.addConstraint(Sketcher.Constraint("Equal", 0, 1))
sketch13.addConstraint(Sketcher.Constraint("Horizontal", 0, 3, 1, 3))
sketch13.addConstraint(Sketcher.Constraint("Diameter", 0, 12.4))
sketch13.addConstraint(Sketcher.Constraint("DistanceY", -1, 1, 0, 3, 9.0))
sketch13.addConstraint(Sketcher.Constraint("DistanceX", -1, 1, 1, 3, 25.2))
sketch13.addConstraint(Sketcher.Constraint("DistanceX", 0, 3, -1, 1, 23.702))
pocket10 = body.newObject("PartDesign::Pocket", "Pocket009")
pocket10.Profile = sketch13
pocket10.Length = 1

doc.recompute()
